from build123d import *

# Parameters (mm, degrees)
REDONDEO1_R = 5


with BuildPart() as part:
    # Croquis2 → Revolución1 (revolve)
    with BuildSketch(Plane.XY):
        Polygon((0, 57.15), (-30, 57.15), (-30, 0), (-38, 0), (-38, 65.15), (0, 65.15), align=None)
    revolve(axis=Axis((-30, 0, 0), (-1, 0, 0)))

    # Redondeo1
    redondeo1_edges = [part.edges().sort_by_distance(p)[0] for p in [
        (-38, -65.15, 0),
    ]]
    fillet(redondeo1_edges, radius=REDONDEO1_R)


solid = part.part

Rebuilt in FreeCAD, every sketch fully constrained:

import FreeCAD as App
import Part
import Sketcher
from FreeCAD import Vector
Q = App.Units.Quantity


def edges_at(feature, points):
    """Names of the edges that pass closest to the given points."""
    edges = feature.Shape.Edges
    near = lambda p: min(range(len(edges)), key=lambda i: edges[i].distToShape(Part.Vertex(*p))[0])
    return sorted({f"Edge{near(p) + 1}" for p in points})


def add_polygon(sketch, points):
    """Adds a closed chain of lines whose ends are joined by coincident constraints."""
    first, n = sketch.GeometryCount, len(points)
    for a, b in zip(points, points[1:] + points[:1]):
        sketch.addGeometry(Part.LineSegment(App.Vector(*a, 0), App.Vector(*b, 0)), False)
    for i in range(n):
        sketch.addConstraint(Sketcher.Constraint("Coincident", first + i, 2, first + (i + 1) % n, 1))

doc = App.newDocument("Part")
body = doc.addObject("PartDesign::Body", "Body")

sketch1 = body.newObject("Sketcher::SketchObject", "Sketch")
sketch1.AttachmentSupport = (doc.getObject("XY_Plane"), [""])
sketch1.MapMode = "FlatFace"
add_polygon(sketch1, [(-30, 57), (0, 57), (0, 65), (-38, 65), (-38, 0), (-30, 0)])
sketch1.addConstraint([
    Sketcher.Constraint("Horizontal", 0),
    Sketcher.Constraint("Vertical", 1),
    Sketcher.Constraint("Horizontal", 2),
    Sketcher.Constraint("Vertical", 3),
    Sketcher.Constraint("Horizontal", 4),
    Sketcher.Constraint("Vertical", 5),
    Sketcher.Constraint("PointOnObject", 0, 2, -2),
    Sketcher.Constraint("PointOnObject", 3, 2, -1),
    Sketcher.Constraint("Equal", 4, 1),
    Sketcher.Constraint("DistanceX", 0, 1, 0, 2, Q("30 mm")),
    Sketcher.Constraint("DistanceX", 2, 2, 2, 1, Q("38 mm")),
    Sketcher.Constraint("DistanceY", 3, 2, 3, 1, Q("65.15 mm")),
])
revolution = body.newObject("PartDesign::Revolution", "Revolution")
revolution.Profile = sketch1
revolution.ReferenceAxis = (sketch1, ["H_Axis"])
revolution.Angle = 360
doc.recompute()

fillet = body.newObject("PartDesign::Fillet", "Fillet")
fillet.Base = (revolution, edges_at(revolution, [(-38, -65.15, 0)]))
fillet.Radius = 5

doc.recompute()
